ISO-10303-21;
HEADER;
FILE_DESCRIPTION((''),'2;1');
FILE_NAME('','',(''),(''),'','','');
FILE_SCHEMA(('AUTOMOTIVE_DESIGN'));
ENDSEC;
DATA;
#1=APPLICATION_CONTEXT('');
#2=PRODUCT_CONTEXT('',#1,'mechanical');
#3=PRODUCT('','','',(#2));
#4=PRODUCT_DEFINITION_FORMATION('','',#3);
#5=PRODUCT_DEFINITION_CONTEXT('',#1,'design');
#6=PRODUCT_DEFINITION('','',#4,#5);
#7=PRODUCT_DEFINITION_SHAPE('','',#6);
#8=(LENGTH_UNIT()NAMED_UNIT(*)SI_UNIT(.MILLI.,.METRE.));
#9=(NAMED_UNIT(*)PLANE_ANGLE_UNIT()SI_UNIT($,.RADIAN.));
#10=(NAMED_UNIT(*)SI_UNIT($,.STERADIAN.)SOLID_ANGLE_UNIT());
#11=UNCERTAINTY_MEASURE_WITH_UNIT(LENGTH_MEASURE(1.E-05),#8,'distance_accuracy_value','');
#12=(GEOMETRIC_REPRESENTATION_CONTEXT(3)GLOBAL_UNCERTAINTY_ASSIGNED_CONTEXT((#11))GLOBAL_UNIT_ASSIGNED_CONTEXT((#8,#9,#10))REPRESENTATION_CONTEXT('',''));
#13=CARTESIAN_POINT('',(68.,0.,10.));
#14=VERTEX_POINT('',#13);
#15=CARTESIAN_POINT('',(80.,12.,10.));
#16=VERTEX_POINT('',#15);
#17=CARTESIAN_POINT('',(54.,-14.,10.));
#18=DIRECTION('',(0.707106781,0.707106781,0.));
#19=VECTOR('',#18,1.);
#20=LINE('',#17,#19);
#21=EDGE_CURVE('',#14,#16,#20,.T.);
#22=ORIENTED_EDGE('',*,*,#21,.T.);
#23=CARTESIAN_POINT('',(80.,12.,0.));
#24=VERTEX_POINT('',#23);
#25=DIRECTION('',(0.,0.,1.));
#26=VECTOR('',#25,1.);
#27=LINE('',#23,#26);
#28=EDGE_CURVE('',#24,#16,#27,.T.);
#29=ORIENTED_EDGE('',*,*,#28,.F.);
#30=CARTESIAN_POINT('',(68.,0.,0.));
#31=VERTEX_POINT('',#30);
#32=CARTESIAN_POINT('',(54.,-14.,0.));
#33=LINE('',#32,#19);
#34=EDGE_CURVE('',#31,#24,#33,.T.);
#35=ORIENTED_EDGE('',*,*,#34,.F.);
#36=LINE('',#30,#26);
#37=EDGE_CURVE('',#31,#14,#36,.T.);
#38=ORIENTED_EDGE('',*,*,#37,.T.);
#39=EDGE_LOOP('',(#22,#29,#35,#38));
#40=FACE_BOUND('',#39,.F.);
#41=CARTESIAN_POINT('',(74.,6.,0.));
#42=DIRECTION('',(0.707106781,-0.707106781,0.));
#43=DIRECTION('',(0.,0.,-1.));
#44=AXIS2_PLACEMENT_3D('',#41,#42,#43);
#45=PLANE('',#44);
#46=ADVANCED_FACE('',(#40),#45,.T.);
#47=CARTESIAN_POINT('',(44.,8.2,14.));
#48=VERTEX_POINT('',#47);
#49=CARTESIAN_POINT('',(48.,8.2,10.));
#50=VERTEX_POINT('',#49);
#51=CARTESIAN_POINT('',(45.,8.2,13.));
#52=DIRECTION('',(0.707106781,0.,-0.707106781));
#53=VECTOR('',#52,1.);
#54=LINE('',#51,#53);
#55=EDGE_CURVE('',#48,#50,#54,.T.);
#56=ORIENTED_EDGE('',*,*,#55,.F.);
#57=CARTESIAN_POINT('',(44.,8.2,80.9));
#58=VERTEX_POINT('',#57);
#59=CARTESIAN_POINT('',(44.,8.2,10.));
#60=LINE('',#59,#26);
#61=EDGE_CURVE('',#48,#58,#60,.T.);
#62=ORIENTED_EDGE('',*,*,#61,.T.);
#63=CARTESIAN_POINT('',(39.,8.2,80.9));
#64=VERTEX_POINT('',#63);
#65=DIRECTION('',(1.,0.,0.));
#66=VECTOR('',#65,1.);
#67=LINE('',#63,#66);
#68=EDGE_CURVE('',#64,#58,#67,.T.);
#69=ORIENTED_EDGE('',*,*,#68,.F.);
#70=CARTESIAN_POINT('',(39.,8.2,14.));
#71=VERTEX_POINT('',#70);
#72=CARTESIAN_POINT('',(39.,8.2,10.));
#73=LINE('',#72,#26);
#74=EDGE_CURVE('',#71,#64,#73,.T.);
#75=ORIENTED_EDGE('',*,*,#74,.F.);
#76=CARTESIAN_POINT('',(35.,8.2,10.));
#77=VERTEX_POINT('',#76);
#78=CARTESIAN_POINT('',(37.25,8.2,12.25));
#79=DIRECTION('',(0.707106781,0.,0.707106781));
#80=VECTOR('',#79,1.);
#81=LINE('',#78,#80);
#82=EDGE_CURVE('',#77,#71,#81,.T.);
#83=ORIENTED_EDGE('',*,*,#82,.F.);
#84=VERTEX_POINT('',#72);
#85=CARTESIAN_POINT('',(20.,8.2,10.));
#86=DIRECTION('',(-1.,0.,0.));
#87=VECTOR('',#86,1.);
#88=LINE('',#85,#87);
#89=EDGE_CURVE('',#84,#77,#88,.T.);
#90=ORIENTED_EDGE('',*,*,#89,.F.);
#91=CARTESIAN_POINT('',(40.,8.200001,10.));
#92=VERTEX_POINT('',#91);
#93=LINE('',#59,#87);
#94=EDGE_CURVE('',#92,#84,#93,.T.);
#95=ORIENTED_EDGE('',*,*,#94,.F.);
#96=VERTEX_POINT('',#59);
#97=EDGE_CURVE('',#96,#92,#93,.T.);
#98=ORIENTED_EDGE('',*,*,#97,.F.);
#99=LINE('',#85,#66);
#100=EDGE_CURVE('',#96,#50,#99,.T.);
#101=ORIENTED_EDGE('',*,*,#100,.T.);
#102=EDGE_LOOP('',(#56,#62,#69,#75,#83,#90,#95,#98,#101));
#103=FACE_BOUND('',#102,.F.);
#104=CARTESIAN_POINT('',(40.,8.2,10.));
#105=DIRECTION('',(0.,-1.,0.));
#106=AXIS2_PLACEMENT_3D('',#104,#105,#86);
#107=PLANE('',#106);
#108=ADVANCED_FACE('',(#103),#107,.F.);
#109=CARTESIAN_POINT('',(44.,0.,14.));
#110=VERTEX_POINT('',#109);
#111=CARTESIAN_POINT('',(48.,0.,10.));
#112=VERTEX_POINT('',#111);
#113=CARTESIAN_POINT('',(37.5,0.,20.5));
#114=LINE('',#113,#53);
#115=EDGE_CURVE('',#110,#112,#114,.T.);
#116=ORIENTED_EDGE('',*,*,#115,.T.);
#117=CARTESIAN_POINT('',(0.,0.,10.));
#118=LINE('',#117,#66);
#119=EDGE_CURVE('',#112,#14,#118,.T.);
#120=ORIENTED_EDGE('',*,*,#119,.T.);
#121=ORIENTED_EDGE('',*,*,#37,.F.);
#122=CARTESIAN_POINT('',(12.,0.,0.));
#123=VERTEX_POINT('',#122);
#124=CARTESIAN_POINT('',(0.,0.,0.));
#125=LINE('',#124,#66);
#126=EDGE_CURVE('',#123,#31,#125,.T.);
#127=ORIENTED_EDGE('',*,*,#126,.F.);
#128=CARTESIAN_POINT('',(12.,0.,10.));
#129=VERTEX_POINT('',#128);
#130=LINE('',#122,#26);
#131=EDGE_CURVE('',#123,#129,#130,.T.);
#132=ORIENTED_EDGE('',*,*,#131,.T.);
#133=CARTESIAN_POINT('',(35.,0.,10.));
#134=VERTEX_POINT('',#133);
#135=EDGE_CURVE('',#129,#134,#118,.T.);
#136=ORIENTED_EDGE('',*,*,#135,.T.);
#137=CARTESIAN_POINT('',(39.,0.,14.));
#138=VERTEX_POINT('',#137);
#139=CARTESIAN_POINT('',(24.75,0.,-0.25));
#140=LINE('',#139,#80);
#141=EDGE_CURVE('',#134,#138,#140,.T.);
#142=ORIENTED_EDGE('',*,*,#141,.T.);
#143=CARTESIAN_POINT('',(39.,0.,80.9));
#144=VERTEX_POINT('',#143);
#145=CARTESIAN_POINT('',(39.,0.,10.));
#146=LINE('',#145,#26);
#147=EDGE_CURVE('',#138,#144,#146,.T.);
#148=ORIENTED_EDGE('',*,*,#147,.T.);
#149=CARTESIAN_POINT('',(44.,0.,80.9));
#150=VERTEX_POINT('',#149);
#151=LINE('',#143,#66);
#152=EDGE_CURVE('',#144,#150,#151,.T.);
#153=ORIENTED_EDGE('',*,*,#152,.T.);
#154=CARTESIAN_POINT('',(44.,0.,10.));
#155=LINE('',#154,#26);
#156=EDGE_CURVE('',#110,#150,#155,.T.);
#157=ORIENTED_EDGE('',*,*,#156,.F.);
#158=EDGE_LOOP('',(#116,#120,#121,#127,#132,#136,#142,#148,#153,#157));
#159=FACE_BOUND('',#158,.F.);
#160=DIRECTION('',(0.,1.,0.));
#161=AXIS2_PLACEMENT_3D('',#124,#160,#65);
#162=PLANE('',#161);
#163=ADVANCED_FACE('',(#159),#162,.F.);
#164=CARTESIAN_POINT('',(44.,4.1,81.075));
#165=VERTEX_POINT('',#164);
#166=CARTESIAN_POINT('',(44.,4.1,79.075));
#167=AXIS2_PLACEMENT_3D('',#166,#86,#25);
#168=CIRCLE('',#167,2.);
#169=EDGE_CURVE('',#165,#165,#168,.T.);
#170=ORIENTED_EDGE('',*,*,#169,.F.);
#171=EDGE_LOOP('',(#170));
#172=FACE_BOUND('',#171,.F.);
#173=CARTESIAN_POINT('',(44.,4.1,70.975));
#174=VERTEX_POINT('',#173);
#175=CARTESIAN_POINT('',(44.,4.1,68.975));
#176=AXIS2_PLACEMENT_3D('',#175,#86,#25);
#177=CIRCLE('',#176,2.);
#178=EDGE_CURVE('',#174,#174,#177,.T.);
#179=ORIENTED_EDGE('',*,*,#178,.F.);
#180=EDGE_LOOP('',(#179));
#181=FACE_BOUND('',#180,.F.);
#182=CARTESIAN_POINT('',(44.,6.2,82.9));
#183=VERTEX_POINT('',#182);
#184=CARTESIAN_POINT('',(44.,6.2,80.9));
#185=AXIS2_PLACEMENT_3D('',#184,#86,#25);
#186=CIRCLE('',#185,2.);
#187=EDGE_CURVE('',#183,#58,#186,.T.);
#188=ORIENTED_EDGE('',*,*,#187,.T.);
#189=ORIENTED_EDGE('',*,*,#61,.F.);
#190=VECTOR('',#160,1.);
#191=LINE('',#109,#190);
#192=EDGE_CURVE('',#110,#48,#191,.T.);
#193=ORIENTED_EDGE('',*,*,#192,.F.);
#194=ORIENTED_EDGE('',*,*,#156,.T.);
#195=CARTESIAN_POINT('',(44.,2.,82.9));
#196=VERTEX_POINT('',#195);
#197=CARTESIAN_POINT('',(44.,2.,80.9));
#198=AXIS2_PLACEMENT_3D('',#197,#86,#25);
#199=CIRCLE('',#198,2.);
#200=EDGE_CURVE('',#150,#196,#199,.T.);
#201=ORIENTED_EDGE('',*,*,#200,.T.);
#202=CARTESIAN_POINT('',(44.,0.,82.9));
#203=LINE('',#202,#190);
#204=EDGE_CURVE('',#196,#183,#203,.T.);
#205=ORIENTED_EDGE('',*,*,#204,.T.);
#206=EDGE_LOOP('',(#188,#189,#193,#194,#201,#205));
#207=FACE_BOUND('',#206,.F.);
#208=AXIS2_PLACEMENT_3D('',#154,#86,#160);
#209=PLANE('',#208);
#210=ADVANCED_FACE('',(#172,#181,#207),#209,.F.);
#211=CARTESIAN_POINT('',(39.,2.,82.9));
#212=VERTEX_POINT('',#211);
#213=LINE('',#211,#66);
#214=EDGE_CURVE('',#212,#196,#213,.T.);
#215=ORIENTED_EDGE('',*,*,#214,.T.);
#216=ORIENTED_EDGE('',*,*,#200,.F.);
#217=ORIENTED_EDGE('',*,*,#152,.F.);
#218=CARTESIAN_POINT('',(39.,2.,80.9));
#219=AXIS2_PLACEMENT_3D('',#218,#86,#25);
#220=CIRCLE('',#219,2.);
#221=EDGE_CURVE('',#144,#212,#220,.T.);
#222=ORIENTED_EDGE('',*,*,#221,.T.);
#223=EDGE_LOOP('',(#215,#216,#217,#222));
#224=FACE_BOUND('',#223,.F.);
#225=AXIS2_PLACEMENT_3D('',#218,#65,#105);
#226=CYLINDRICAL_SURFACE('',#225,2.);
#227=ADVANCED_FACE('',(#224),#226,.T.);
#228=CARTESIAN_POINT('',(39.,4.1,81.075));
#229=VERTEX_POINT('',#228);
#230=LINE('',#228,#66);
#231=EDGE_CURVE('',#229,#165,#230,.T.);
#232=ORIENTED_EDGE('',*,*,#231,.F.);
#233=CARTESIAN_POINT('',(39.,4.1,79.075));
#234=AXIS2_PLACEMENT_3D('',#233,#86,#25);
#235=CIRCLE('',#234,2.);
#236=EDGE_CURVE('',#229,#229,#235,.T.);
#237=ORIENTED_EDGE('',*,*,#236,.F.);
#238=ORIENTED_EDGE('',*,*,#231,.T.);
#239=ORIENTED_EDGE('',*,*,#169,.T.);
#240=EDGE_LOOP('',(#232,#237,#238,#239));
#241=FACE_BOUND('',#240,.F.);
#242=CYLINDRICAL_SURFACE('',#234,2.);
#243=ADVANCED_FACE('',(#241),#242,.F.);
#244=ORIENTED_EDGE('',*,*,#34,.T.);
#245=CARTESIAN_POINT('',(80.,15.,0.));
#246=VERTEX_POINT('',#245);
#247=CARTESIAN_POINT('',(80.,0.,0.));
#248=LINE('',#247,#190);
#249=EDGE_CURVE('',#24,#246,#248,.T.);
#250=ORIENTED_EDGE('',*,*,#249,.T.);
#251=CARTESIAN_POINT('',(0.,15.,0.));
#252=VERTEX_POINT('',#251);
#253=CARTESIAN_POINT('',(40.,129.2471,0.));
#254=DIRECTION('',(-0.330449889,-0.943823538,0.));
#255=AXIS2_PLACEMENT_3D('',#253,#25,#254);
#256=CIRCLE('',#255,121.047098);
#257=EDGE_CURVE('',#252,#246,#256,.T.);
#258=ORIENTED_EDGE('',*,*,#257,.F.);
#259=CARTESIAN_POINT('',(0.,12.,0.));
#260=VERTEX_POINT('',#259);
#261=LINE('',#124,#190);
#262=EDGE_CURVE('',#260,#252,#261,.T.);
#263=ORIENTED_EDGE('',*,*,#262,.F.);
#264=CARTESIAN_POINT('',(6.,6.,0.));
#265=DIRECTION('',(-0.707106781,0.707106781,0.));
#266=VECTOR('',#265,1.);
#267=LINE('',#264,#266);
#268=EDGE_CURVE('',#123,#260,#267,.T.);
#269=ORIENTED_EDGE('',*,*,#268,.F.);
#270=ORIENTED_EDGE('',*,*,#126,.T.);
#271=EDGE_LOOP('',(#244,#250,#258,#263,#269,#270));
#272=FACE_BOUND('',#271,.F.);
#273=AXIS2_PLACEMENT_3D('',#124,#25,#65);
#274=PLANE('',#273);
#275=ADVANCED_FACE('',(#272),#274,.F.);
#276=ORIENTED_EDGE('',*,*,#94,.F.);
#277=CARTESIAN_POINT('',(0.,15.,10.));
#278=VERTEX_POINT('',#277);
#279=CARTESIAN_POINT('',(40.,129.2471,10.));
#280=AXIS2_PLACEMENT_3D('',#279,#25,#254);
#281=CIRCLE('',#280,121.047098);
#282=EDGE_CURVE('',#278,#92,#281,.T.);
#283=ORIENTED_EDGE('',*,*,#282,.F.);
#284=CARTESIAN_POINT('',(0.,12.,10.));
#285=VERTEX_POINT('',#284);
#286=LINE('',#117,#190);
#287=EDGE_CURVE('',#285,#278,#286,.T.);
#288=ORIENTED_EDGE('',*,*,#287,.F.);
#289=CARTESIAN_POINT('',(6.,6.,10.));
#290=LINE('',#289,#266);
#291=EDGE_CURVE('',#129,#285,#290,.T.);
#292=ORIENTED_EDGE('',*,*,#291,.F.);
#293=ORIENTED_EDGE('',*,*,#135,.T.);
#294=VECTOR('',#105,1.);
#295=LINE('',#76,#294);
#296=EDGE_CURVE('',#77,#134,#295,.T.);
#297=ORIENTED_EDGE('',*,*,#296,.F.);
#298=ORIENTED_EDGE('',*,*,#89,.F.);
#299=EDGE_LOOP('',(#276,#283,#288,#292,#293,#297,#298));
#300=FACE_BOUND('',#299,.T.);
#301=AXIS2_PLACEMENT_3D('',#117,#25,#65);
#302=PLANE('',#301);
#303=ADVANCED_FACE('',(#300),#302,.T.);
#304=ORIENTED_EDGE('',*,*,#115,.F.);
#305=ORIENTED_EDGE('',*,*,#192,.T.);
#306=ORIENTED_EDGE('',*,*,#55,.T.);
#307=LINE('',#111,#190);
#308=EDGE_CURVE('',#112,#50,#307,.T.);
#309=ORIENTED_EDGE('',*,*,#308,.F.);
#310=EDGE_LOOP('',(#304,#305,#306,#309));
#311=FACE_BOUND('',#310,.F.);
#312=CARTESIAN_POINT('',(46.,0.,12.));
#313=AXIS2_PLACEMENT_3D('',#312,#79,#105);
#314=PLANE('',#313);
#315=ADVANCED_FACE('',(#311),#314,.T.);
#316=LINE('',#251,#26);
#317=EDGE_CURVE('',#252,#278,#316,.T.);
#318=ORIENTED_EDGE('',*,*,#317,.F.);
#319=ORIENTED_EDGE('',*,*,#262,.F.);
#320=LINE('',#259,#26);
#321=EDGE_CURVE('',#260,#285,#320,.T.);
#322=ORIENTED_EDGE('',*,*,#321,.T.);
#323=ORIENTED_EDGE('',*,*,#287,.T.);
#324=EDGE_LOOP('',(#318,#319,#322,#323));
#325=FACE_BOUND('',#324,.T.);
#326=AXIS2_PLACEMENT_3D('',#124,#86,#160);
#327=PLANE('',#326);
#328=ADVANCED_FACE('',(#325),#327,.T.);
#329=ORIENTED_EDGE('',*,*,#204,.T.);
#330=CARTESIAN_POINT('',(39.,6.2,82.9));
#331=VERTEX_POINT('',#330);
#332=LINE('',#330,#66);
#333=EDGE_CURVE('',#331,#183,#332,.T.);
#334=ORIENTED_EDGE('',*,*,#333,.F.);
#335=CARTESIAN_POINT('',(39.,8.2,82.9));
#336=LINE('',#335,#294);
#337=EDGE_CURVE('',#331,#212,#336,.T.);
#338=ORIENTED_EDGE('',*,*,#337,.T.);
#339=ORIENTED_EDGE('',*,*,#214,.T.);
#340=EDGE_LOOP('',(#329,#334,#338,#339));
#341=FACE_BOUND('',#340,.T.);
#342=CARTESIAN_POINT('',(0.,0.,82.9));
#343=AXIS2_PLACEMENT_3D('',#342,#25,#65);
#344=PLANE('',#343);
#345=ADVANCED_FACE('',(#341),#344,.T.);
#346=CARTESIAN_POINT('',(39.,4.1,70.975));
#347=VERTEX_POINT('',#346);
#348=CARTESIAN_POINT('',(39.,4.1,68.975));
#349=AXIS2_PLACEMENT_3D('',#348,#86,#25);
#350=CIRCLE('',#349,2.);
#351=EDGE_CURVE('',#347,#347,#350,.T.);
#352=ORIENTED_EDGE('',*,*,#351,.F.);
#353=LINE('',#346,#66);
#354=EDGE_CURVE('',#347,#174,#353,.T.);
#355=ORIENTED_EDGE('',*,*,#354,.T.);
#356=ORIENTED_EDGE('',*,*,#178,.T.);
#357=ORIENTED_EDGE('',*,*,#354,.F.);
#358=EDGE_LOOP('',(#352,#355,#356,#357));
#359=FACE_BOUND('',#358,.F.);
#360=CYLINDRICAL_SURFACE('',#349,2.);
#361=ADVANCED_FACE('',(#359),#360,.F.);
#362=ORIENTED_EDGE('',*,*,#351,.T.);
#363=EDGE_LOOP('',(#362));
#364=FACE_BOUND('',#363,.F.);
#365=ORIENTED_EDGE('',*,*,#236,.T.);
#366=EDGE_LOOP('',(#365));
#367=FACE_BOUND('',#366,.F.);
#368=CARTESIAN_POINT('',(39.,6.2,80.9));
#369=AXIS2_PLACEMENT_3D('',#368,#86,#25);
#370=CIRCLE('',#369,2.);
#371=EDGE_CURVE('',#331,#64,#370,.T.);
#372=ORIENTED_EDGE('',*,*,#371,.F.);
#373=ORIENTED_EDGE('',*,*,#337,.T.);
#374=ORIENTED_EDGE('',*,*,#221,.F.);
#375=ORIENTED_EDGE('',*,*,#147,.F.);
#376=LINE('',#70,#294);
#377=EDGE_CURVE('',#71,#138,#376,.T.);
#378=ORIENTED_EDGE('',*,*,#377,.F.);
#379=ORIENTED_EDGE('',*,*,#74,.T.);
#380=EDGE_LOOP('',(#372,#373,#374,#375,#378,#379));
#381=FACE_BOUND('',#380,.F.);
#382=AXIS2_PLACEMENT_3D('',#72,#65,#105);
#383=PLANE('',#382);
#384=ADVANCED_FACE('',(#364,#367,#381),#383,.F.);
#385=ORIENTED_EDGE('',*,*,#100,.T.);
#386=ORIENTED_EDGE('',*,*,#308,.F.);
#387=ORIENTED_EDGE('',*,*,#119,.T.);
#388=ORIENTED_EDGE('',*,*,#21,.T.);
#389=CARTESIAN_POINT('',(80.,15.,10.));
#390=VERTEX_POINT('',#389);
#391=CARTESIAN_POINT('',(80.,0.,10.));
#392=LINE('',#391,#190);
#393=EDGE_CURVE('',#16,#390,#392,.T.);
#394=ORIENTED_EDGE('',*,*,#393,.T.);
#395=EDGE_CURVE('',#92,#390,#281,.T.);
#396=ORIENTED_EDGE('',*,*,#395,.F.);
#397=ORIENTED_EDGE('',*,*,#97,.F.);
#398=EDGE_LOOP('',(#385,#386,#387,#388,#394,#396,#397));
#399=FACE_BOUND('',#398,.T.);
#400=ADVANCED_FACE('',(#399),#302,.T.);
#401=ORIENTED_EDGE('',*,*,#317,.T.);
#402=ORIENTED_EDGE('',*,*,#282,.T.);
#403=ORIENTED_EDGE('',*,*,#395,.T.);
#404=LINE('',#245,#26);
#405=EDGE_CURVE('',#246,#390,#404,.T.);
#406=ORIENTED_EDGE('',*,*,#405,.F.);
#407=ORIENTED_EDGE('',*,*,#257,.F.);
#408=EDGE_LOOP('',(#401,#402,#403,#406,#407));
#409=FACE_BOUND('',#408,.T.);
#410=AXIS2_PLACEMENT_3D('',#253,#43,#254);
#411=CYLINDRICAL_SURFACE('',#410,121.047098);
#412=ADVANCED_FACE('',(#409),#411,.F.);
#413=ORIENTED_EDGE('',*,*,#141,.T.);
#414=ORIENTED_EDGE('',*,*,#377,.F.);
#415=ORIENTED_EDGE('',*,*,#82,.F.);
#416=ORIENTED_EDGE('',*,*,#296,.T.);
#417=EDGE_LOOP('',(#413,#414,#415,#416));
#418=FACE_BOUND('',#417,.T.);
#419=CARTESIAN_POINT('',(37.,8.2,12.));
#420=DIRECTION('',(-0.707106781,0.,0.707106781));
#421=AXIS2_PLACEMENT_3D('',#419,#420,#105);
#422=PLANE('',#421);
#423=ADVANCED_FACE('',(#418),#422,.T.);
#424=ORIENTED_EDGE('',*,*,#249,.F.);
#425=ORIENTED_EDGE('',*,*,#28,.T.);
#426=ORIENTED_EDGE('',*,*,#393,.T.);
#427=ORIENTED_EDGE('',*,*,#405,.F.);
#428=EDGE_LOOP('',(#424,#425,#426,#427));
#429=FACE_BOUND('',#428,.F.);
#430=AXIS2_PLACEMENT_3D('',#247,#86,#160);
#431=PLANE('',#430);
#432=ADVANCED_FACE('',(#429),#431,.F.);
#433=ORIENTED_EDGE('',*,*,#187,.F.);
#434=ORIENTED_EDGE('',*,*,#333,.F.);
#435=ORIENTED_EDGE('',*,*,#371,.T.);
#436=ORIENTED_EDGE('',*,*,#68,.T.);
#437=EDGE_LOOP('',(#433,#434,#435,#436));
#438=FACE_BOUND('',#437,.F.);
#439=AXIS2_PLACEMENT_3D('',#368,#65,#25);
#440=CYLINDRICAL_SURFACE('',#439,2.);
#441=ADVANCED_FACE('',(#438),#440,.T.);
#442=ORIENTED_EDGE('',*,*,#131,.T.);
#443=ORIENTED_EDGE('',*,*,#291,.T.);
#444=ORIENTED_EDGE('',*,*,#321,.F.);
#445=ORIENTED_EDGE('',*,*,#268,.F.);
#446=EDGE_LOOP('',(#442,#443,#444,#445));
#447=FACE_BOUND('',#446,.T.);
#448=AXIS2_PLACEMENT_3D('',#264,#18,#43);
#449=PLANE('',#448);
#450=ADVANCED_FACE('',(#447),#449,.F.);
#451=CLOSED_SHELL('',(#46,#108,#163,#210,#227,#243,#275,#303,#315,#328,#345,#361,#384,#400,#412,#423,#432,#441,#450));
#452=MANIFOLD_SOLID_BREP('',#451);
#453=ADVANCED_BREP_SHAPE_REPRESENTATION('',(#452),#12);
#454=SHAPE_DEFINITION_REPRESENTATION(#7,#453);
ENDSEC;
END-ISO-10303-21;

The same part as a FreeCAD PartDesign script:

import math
import FreeCAD as App
import Part
import Sketcher
Q = App.Units.Quantity


def edges_at(feature, points):
    """Names of the edges that pass closest to the given points."""
    edges = feature.Shape.Edges
    near = lambda p: min(range(len(edges)), key=lambda i: edges[i].distToShape(Part.Vertex(*p))[0])
    return sorted({f"Edge{near(p) + 1}" for p in points})

doc = App.newDocument("Part")
body = doc.addObject("PartDesign::Body", "Body")

sketch1 = doc.addObject("Sketcher::SketchObject", "Sketch")
body.addObject(sketch1)
sketch1.AttachmentSupport = (doc.XY_Plane, [""])
sketch1.MapMode = "FlatFace"
sketch1.addGeometry([
    Part.LineSegment(App.Vector(0, 15, 0), App.Vector(0, 0, 0)),
    Part.LineSegment(App.Vector(0, 0, 0), App.Vector(80, 0, 0)),
    Part.LineSegment(App.Vector(80, 0, 0), App.Vector(80, 15, 0)),
    Part.ArcOfCircle(Part.Circle(App.Vector(40, 129, 0), App.Vector(0, 0, 1), 121), math.radians(-109), math.radians(-71)),
], False)
sketch1.addConstraint([
    Sketcher.Constraint("Coincident", 0, 2, 1, 1),
    Sketcher.Constraint("Coincident", 1, 2, 2, 1),
    Sketcher.Constraint("Coincident", 2, 2, 3, 2),
    Sketcher.Constraint("Coincident", 3, 1, 0, 1),
    Sketcher.Constraint("Vertical", 0),
    Sketcher.Constraint("Horizontal", 1),
    Sketcher.Constraint("Vertical", 2),
    Sketcher.Constraint("Coincident", 0, 2, -1, 1),
    Sketcher.Constraint("Horizontal", 2, 2, 3, 1),
    Sketcher.Constraint("DistanceX", 1, 1, 1, 2, Q("80 mm")),
    Sketcher.Constraint("DistanceY", 0, 2, 0, 1, Q("15 mm")),
    Sketcher.Constraint("Radius", 3, Q("121.047 mm")),
])
pad1 = doc.addObject("PartDesign::Pad", "Pad")
body.addObject(pad1)
pad1.Profile = sketch1
pad1.Length = 10

sketch2 = doc.addObject("Sketcher::SketchObject", "Sketch001")
body.addObject(sketch2)
sketch2.AttachmentSupport = (doc.XY_Plane, [""])
sketch2.MapMode = "FlatFace"
sketch2.AttachmentOffset = App.Placement(App.Vector(0, 0, 10), App.Rotation())
sketch2.addGeometry([
    Part.LineSegment(App.Vector(39, 8, 0), App.Vector(39, 0, 0)),
    Part.LineSegment(App.Vector(39, 0, 0), App.Vector(44, 0, 0)),
    Part.LineSegment(App.Vector(44, 0, 0), App.Vector(44, 8, 0)),
    Part.LineSegment(App.Vector(44, 8, 0), App.Vector(39, 8, 0)),
], False)
sketch2.addConstraint([
    Sketcher.Constraint("Coincident", 0, 2, 1, 1),
    Sketcher.Constraint("Coincident", 1, 2, 2, 1),
    Sketcher.Constraint("Coincident", 2, 2, 3, 1),
    Sketcher.Constraint("Coincident", 3, 2, 0, 1),
    Sketcher.Constraint("Vertical", 0),
    Sketcher.Constraint("Horizontal", 1),
    Sketcher.Constraint("Vertical", 2),
    Sketcher.Constraint("Horizontal", 3),
    Sketcher.Constraint("PointOnObject", 0, 2, -1),
    Sketcher.Constraint("DistanceX", 1, 1, 1, 2, Q("5 mm")),
    Sketcher.Constraint("DistanceY", 0, 2, 0, 1, Q("8.2 mm")),
    Sketcher.Constraint("DistanceX", -1, 1, 0, 2, Q("39 mm")),
])
pad2 = doc.addObject("PartDesign::Pad", "Pad001")
body.addObject(pad2)
pad2.Profile = sketch2
pad2.Length = 72.9

sketch3 = doc.addObject("Sketcher::SketchObject", "Sketch002")
body.addObject(sketch3)
sketch3.AttachmentSupport = (doc.YZ_Plane, [""])
sketch3.MapMode = "FlatFace"
sketch3.AttachmentOffset = App.Placement(App.Vector(0, 0, 39), App.Rotation())
sketch3.addGeometry([
    Part.Circle(App.Vector(4.1, 79.1, 0), App.Vector(0, 0, 1), 2),
    Part.Circle(App.Vector(4.1, 69, 0), App.Vector(0, 0, 1), 2),
], False)
sketch3.addConstraint([
    Sketcher.Constraint("Equal", 0, 1),
    Sketcher.Constraint("Vertical", 0, 3, 1, 3),
    Sketcher.Constraint("Diameter", 0, Q("4 mm")),
    Sketcher.Constraint("DistanceX", -1, 1, 0, 3, Q("4.1 mm")),
    Sketcher.Constraint("DistanceY", 1, 3, 0, 3, Q("10.1 mm")),
    Sketcher.Constraint("DistanceY", -1, 1, 0, 3, Q("79.075 mm")),
])
pocket1 = doc.addObject("PartDesign::Pocket", "Pocket")
body.addObject(pocket1)
pocket1.Profile = sketch3
pocket1.Length = 5
pocket1.Reversed = True
doc.recompute()

chamfer = doc.addObject("PartDesign::Chamfer", "Chamfer")
body.addObject(chamfer)
chamfer.Base = (pocket1, edges_at(pocket1, [(39, 4.1, 10), (44, 4.1, 10)]))
chamfer.Size = 4
doc.recompute()

chamfer2 = doc.addObject("PartDesign::Chamfer", "Chamfer001")
body.addObject(chamfer2)
chamfer2.Base = (chamfer, edges_at(chamfer, [(0, 0, 5), (80, 0, 5)]))
chamfer2.Size = 12
doc.recompute()

fillet = doc.addObject("PartDesign::Fillet", "Fillet")
body.addObject(fillet)
fillet.Base = (chamfer2, edges_at(chamfer2, [(41.5, 8.2, 82.9), (41.5, 0, 82.9)]))
fillet.Radius = 2

doc.recompute()
